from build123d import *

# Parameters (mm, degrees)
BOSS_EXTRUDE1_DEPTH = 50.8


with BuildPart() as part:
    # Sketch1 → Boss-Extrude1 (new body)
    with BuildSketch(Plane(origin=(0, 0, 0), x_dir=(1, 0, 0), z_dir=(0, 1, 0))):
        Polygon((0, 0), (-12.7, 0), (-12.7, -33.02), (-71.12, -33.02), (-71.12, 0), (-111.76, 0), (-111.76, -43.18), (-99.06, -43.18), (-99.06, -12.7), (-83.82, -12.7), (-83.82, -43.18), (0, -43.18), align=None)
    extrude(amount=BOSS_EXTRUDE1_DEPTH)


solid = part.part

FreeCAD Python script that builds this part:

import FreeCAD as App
import Part
import Sketcher
from FreeCAD import Vector
Q = App.Units.Quantity

doc = App.newDocument("Part")
body = doc.addObject("PartDesign::Body", "Body")

# Sketch on XZ plane
sketch1 = body.newObject("Sketcher::SketchObject", "Sketch")
sketch1.AttachmentSupport = (doc.getObject("XZ_Plane"), [""])
sketch1.MapMode = "FlatFace"
sketch1.addGeometry([
    Part.LineSegment(Vector(0, 0, 0), Vector(-13, 0, 0)),  # 0
    Part.LineSegment(Vector(-13, 0, 0), Vector(-13, 33, 0)),  # 1
    Part.LineSegment(Vector(-13, 33, 0), Vector(-71, 33, 0)),  # 2
    Part.LineSegment(Vector(-71, 33, 0), Vector(-71, 0, 0)),  # 3
    Part.LineSegment(Vector(-71, 0, 0), Vector(-112, 0, 0)),  # 4
    Part.LineSegment(Vector(-112, 0, 0), Vector(-112, 43, 0)),  # 5
    Part.LineSegment(Vector(-112, 43, 0), Vector(-99, 43, 0)),  # 6
    Part.LineSegment(Vector(-99, 43, 0), Vector(-99, 13, 0)),  # 7
    Part.LineSegment(Vector(-99, 13, 0), Vector(-84, 13, 0)),  # 8
    Part.LineSegment(Vector(-84, 13, 0), Vector(-84, 43, 0)),  # 9
    Part.LineSegment(Vector(-84, 43, 0), Vector(0, 43, 0)),  # 10
    Part.LineSegment(Vector(0, 43, 0), Vector(0, 0, 0)),  # 11
], False)
sketch1.addConstraint([
    Sketcher.Constraint("Coincident", 0, 2, 1, 1),
    Sketcher.Constraint("Coincident", 1, 2, 2, 1),
    Sketcher.Constraint("Coincident", 2, 2, 3, 1),
    Sketcher.Constraint("Coincident", 3, 2, 4, 1),
    Sketcher.Constraint("Coincident", 4, 2, 5, 1),
    Sketcher.Constraint("Coincident", 5, 2, 6, 1),
    Sketcher.Constraint("Coincident", 6, 2, 7, 1),
    Sketcher.Constraint("Coincident", 7, 2, 8, 1),
    Sketcher.Constraint("Coincident", 8, 2, 9, 1),
    Sketcher.Constraint("Coincident", 9, 2, 10, 1),
    Sketcher.Constraint("Coincident", 10, 2, 11, 1),
    Sketcher.Constraint("Coincident", 11, 2, 0, 1),
    Sketcher.Constraint("Horizontal", 0),
    Sketcher.Constraint("Vertical", 1),
    Sketcher.Constraint("Horizontal", 2),
    Sketcher.Constraint("Vertical", 3),
    Sketcher.Constraint("Horizontal", 4),
    Sketcher.Constraint("Vertical", 5),
    Sketcher.Constraint("Horizontal", 6),
    Sketcher.Constraint("Vertical", 7),
    Sketcher.Constraint("Horizontal", 8),
    Sketcher.Constraint("Vertical", 9),
    Sketcher.Constraint("Horizontal", 10),
    Sketcher.Constraint("Vertical", 11),
    Sketcher.Constraint("Coincident", 11, 2, -1, 1),
    Sketcher.Constraint("PointOnObject", 3, 2, -1),
    Sketcher.Constraint("Horizontal", 6, 2, 9, 2),
    Sketcher.Constraint("Equal", 0, 6),
    Sketcher.Constraint("DistanceX", 0, 2, 0, 1, Q("0.5 in")),
    Sketcher.Constraint("DistanceX", 2, 2, 2, 1, Q("2.3 in")),
    Sketcher.Constraint("DistanceX", 4, 2, 4, 1, Q("1.6 in")),
    Sketcher.Constraint("DistanceX", 8, 1, 8, 2, Q("0.6 in")),
    Sketcher.Constraint("DistanceY", 1, 1, 1, 2, Q("1.3 in")),
    Sketcher.Constraint("DistanceY", 5, 1, 5, 2, Q("1.7 in")),
    Sketcher.Constraint("DistanceY", 7, 2, 7, 1, Q("1.2 in")),
])
pad1 = body.newObject("PartDesign::Pad", "Pad")
pad1.Profile = sketch1
pad1.Length = Q("2 in")
pad1.Reversed = True

doc.recompute()
